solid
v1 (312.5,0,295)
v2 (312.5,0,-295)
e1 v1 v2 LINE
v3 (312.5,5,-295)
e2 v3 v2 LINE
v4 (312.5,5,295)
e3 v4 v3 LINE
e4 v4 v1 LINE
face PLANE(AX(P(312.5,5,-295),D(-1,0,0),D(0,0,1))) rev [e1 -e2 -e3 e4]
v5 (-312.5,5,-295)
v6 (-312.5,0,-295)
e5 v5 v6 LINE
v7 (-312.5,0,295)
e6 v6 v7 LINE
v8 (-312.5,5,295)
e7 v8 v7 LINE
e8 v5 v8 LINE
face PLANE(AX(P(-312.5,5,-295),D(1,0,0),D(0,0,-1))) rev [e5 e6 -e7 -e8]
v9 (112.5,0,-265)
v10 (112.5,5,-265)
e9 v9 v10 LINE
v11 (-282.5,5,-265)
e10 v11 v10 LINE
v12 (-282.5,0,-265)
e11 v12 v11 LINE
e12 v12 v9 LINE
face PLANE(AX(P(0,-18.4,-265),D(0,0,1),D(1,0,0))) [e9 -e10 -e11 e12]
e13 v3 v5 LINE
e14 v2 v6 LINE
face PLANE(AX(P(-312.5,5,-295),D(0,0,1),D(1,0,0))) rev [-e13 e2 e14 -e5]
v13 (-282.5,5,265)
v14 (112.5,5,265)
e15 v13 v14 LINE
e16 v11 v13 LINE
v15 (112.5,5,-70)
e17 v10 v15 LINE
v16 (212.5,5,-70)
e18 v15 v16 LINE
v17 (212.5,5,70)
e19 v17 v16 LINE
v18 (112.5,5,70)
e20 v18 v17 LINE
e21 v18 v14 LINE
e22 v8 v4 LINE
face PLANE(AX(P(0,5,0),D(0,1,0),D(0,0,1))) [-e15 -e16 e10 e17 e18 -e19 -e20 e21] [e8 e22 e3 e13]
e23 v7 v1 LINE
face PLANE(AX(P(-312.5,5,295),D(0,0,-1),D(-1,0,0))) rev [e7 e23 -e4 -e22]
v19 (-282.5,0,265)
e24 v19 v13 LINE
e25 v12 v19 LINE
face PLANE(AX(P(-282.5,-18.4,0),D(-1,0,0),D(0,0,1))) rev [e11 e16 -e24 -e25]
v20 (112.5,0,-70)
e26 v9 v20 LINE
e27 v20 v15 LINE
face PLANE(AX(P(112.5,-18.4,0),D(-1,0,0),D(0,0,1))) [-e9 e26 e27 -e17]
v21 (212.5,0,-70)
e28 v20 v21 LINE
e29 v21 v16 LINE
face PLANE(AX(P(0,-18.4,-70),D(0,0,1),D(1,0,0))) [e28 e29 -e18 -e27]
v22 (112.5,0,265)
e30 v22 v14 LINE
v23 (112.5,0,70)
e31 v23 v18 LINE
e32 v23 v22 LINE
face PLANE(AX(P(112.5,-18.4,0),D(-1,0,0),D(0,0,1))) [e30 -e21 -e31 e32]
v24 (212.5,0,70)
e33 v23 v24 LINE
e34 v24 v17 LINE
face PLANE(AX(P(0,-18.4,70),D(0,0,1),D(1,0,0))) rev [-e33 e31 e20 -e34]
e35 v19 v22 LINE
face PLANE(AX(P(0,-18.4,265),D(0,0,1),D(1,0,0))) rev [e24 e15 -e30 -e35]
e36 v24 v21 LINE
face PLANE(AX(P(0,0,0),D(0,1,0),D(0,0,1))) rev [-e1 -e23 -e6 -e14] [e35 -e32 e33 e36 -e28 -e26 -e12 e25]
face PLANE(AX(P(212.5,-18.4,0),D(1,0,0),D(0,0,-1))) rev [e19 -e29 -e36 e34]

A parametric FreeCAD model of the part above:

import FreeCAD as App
import Part
import Sketcher

V = App.Vector
Q = App.Units.Quantity


def add_polygon(sketch, points):
    """Adds a closed chain of lines whose ends are joined by coincident constraints."""
    first, n = sketch.GeometryCount, len(points)
    for a, b in zip(points, points[1:] + points[:1]):
        sketch.addGeometry(Part.LineSegment(App.Vector(*a, 0), App.Vector(*b, 0)), False)
    for i in range(n):
        sketch.addConstraint(Sketcher.Constraint("Coincident", first + i, 2, first + (i + 1) % n, 1))

doc = App.newDocument("Part")
body = doc.addObject("PartDesign::Body", "Body")

# Sketch on XZ plane
sketch1 = body.newObject("Sketcher::SketchObject", "Sketch")
sketch1.AttachmentSupport = (doc.getObject("XZ_Plane"), [""])
sketch1.MapMode = "FlatFace"
add_polygon(sketch1, [(-312, -295), (-312, 295), (312, 295), (312, -295)])  # lines 0-3
sketch1.addConstraint([
    Sketcher.Constraint("Vertical", 0),
    Sketcher.Constraint("Horizontal", 1),
    Sketcher.Constraint("Vertical", 2),
    Sketcher.Constraint("Horizontal", 3),
    Sketcher.Constraint("Symmetric", 0, 2, 2, 2, -1, 1),
    Sketcher.Constraint("DistanceX", 1, 1, 1, 2, Q("625 mm")),
    Sketcher.Constraint("DistanceY", 0, 1, 0, 2, Q("590 mm")),
])
pad1 = body.newObject("PartDesign::Pad", "Pad")
pad1.Profile = sketch1
pad1.Length = 5
pad1.Reversed = True

# Sketch on XZ plane
sketch2 = body.newObject("Sketcher::SketchObject", "Sketch001")
sketch2.AttachmentSupport = (doc.getObject("XZ_Plane"), [""])
sketch2.MapMode = "FlatFace"
sketch2.AttachmentOffset = App.Placement(V(0, 0, -5), App.Rotation())
add_polygon(sketch2, [(-282, -265), (-282, 265), (112, 265), (112, -265)])  # lines 0-3
sketch2.addConstraint([
    Sketcher.Constraint("Vertical", 0),
    Sketcher.Constraint("Horizontal", 1),
    Sketcher.Constraint("Vertical", 2),
    Sketcher.Constraint("Horizontal", 3),
    Sketcher.Constraint("DistanceX", 1, 1, 1, 2, Q("395 mm")),
    Sketcher.Constraint("DistanceY", 0, 1, 0, 2, Q("530 mm")),
    Sketcher.Constraint("DistanceY", -1, 1, 0, 2, Q("265 mm")),
    Sketcher.Constraint("DistanceX", 0, 2, -1, 1, Q("282.5 mm")),
])
pocket1 = body.newObject("PartDesign::Pocket", "Pocket")
pocket1.Profile = sketch2
pocket1.Length = 23.4
pocket1.Reversed = True

# Sketch on XZ plane
sketch3 = body.newObject("Sketcher::SketchObject", "Sketch002")
sketch3.AttachmentSupport = (doc.getObject("XZ_Plane"), [""])
sketch3.MapMode = "FlatFace"
sketch3.AttachmentOffset = App.Placement(V(0, 0, -5), App.Rotation())
add_polygon(sketch3, [(112, -70), (112, 70), (212, 70), (212, -70)])  # lines 0-3
sketch3.addConstraint([
    Sketcher.Constraint("Vertical", 0),
    Sketcher.Constraint("Horizontal", 1),
    Sketcher.Constraint("Vertical", 2),
    Sketcher.Constraint("Horizontal", 3),
    Sketcher.Constraint("DistanceX", 1, 1, 1, 2, Q("100 mm")),
    Sketcher.Constraint("DistanceY", 0, 1, 0, 2, Q("140 mm")),
    Sketcher.Constraint("DistanceY", -1, 1, 0, 2, Q("70 mm")),
    Sketcher.Constraint("DistanceX", -1, 1, 0, 2, Q("112.5 mm")),
])
pocket2 = body.newObject("PartDesign::Pocket", "Pocket001")
pocket2.Profile = sketch3
pocket2.Length = 23.4
pocket2.Reversed = True

doc.recompute()
